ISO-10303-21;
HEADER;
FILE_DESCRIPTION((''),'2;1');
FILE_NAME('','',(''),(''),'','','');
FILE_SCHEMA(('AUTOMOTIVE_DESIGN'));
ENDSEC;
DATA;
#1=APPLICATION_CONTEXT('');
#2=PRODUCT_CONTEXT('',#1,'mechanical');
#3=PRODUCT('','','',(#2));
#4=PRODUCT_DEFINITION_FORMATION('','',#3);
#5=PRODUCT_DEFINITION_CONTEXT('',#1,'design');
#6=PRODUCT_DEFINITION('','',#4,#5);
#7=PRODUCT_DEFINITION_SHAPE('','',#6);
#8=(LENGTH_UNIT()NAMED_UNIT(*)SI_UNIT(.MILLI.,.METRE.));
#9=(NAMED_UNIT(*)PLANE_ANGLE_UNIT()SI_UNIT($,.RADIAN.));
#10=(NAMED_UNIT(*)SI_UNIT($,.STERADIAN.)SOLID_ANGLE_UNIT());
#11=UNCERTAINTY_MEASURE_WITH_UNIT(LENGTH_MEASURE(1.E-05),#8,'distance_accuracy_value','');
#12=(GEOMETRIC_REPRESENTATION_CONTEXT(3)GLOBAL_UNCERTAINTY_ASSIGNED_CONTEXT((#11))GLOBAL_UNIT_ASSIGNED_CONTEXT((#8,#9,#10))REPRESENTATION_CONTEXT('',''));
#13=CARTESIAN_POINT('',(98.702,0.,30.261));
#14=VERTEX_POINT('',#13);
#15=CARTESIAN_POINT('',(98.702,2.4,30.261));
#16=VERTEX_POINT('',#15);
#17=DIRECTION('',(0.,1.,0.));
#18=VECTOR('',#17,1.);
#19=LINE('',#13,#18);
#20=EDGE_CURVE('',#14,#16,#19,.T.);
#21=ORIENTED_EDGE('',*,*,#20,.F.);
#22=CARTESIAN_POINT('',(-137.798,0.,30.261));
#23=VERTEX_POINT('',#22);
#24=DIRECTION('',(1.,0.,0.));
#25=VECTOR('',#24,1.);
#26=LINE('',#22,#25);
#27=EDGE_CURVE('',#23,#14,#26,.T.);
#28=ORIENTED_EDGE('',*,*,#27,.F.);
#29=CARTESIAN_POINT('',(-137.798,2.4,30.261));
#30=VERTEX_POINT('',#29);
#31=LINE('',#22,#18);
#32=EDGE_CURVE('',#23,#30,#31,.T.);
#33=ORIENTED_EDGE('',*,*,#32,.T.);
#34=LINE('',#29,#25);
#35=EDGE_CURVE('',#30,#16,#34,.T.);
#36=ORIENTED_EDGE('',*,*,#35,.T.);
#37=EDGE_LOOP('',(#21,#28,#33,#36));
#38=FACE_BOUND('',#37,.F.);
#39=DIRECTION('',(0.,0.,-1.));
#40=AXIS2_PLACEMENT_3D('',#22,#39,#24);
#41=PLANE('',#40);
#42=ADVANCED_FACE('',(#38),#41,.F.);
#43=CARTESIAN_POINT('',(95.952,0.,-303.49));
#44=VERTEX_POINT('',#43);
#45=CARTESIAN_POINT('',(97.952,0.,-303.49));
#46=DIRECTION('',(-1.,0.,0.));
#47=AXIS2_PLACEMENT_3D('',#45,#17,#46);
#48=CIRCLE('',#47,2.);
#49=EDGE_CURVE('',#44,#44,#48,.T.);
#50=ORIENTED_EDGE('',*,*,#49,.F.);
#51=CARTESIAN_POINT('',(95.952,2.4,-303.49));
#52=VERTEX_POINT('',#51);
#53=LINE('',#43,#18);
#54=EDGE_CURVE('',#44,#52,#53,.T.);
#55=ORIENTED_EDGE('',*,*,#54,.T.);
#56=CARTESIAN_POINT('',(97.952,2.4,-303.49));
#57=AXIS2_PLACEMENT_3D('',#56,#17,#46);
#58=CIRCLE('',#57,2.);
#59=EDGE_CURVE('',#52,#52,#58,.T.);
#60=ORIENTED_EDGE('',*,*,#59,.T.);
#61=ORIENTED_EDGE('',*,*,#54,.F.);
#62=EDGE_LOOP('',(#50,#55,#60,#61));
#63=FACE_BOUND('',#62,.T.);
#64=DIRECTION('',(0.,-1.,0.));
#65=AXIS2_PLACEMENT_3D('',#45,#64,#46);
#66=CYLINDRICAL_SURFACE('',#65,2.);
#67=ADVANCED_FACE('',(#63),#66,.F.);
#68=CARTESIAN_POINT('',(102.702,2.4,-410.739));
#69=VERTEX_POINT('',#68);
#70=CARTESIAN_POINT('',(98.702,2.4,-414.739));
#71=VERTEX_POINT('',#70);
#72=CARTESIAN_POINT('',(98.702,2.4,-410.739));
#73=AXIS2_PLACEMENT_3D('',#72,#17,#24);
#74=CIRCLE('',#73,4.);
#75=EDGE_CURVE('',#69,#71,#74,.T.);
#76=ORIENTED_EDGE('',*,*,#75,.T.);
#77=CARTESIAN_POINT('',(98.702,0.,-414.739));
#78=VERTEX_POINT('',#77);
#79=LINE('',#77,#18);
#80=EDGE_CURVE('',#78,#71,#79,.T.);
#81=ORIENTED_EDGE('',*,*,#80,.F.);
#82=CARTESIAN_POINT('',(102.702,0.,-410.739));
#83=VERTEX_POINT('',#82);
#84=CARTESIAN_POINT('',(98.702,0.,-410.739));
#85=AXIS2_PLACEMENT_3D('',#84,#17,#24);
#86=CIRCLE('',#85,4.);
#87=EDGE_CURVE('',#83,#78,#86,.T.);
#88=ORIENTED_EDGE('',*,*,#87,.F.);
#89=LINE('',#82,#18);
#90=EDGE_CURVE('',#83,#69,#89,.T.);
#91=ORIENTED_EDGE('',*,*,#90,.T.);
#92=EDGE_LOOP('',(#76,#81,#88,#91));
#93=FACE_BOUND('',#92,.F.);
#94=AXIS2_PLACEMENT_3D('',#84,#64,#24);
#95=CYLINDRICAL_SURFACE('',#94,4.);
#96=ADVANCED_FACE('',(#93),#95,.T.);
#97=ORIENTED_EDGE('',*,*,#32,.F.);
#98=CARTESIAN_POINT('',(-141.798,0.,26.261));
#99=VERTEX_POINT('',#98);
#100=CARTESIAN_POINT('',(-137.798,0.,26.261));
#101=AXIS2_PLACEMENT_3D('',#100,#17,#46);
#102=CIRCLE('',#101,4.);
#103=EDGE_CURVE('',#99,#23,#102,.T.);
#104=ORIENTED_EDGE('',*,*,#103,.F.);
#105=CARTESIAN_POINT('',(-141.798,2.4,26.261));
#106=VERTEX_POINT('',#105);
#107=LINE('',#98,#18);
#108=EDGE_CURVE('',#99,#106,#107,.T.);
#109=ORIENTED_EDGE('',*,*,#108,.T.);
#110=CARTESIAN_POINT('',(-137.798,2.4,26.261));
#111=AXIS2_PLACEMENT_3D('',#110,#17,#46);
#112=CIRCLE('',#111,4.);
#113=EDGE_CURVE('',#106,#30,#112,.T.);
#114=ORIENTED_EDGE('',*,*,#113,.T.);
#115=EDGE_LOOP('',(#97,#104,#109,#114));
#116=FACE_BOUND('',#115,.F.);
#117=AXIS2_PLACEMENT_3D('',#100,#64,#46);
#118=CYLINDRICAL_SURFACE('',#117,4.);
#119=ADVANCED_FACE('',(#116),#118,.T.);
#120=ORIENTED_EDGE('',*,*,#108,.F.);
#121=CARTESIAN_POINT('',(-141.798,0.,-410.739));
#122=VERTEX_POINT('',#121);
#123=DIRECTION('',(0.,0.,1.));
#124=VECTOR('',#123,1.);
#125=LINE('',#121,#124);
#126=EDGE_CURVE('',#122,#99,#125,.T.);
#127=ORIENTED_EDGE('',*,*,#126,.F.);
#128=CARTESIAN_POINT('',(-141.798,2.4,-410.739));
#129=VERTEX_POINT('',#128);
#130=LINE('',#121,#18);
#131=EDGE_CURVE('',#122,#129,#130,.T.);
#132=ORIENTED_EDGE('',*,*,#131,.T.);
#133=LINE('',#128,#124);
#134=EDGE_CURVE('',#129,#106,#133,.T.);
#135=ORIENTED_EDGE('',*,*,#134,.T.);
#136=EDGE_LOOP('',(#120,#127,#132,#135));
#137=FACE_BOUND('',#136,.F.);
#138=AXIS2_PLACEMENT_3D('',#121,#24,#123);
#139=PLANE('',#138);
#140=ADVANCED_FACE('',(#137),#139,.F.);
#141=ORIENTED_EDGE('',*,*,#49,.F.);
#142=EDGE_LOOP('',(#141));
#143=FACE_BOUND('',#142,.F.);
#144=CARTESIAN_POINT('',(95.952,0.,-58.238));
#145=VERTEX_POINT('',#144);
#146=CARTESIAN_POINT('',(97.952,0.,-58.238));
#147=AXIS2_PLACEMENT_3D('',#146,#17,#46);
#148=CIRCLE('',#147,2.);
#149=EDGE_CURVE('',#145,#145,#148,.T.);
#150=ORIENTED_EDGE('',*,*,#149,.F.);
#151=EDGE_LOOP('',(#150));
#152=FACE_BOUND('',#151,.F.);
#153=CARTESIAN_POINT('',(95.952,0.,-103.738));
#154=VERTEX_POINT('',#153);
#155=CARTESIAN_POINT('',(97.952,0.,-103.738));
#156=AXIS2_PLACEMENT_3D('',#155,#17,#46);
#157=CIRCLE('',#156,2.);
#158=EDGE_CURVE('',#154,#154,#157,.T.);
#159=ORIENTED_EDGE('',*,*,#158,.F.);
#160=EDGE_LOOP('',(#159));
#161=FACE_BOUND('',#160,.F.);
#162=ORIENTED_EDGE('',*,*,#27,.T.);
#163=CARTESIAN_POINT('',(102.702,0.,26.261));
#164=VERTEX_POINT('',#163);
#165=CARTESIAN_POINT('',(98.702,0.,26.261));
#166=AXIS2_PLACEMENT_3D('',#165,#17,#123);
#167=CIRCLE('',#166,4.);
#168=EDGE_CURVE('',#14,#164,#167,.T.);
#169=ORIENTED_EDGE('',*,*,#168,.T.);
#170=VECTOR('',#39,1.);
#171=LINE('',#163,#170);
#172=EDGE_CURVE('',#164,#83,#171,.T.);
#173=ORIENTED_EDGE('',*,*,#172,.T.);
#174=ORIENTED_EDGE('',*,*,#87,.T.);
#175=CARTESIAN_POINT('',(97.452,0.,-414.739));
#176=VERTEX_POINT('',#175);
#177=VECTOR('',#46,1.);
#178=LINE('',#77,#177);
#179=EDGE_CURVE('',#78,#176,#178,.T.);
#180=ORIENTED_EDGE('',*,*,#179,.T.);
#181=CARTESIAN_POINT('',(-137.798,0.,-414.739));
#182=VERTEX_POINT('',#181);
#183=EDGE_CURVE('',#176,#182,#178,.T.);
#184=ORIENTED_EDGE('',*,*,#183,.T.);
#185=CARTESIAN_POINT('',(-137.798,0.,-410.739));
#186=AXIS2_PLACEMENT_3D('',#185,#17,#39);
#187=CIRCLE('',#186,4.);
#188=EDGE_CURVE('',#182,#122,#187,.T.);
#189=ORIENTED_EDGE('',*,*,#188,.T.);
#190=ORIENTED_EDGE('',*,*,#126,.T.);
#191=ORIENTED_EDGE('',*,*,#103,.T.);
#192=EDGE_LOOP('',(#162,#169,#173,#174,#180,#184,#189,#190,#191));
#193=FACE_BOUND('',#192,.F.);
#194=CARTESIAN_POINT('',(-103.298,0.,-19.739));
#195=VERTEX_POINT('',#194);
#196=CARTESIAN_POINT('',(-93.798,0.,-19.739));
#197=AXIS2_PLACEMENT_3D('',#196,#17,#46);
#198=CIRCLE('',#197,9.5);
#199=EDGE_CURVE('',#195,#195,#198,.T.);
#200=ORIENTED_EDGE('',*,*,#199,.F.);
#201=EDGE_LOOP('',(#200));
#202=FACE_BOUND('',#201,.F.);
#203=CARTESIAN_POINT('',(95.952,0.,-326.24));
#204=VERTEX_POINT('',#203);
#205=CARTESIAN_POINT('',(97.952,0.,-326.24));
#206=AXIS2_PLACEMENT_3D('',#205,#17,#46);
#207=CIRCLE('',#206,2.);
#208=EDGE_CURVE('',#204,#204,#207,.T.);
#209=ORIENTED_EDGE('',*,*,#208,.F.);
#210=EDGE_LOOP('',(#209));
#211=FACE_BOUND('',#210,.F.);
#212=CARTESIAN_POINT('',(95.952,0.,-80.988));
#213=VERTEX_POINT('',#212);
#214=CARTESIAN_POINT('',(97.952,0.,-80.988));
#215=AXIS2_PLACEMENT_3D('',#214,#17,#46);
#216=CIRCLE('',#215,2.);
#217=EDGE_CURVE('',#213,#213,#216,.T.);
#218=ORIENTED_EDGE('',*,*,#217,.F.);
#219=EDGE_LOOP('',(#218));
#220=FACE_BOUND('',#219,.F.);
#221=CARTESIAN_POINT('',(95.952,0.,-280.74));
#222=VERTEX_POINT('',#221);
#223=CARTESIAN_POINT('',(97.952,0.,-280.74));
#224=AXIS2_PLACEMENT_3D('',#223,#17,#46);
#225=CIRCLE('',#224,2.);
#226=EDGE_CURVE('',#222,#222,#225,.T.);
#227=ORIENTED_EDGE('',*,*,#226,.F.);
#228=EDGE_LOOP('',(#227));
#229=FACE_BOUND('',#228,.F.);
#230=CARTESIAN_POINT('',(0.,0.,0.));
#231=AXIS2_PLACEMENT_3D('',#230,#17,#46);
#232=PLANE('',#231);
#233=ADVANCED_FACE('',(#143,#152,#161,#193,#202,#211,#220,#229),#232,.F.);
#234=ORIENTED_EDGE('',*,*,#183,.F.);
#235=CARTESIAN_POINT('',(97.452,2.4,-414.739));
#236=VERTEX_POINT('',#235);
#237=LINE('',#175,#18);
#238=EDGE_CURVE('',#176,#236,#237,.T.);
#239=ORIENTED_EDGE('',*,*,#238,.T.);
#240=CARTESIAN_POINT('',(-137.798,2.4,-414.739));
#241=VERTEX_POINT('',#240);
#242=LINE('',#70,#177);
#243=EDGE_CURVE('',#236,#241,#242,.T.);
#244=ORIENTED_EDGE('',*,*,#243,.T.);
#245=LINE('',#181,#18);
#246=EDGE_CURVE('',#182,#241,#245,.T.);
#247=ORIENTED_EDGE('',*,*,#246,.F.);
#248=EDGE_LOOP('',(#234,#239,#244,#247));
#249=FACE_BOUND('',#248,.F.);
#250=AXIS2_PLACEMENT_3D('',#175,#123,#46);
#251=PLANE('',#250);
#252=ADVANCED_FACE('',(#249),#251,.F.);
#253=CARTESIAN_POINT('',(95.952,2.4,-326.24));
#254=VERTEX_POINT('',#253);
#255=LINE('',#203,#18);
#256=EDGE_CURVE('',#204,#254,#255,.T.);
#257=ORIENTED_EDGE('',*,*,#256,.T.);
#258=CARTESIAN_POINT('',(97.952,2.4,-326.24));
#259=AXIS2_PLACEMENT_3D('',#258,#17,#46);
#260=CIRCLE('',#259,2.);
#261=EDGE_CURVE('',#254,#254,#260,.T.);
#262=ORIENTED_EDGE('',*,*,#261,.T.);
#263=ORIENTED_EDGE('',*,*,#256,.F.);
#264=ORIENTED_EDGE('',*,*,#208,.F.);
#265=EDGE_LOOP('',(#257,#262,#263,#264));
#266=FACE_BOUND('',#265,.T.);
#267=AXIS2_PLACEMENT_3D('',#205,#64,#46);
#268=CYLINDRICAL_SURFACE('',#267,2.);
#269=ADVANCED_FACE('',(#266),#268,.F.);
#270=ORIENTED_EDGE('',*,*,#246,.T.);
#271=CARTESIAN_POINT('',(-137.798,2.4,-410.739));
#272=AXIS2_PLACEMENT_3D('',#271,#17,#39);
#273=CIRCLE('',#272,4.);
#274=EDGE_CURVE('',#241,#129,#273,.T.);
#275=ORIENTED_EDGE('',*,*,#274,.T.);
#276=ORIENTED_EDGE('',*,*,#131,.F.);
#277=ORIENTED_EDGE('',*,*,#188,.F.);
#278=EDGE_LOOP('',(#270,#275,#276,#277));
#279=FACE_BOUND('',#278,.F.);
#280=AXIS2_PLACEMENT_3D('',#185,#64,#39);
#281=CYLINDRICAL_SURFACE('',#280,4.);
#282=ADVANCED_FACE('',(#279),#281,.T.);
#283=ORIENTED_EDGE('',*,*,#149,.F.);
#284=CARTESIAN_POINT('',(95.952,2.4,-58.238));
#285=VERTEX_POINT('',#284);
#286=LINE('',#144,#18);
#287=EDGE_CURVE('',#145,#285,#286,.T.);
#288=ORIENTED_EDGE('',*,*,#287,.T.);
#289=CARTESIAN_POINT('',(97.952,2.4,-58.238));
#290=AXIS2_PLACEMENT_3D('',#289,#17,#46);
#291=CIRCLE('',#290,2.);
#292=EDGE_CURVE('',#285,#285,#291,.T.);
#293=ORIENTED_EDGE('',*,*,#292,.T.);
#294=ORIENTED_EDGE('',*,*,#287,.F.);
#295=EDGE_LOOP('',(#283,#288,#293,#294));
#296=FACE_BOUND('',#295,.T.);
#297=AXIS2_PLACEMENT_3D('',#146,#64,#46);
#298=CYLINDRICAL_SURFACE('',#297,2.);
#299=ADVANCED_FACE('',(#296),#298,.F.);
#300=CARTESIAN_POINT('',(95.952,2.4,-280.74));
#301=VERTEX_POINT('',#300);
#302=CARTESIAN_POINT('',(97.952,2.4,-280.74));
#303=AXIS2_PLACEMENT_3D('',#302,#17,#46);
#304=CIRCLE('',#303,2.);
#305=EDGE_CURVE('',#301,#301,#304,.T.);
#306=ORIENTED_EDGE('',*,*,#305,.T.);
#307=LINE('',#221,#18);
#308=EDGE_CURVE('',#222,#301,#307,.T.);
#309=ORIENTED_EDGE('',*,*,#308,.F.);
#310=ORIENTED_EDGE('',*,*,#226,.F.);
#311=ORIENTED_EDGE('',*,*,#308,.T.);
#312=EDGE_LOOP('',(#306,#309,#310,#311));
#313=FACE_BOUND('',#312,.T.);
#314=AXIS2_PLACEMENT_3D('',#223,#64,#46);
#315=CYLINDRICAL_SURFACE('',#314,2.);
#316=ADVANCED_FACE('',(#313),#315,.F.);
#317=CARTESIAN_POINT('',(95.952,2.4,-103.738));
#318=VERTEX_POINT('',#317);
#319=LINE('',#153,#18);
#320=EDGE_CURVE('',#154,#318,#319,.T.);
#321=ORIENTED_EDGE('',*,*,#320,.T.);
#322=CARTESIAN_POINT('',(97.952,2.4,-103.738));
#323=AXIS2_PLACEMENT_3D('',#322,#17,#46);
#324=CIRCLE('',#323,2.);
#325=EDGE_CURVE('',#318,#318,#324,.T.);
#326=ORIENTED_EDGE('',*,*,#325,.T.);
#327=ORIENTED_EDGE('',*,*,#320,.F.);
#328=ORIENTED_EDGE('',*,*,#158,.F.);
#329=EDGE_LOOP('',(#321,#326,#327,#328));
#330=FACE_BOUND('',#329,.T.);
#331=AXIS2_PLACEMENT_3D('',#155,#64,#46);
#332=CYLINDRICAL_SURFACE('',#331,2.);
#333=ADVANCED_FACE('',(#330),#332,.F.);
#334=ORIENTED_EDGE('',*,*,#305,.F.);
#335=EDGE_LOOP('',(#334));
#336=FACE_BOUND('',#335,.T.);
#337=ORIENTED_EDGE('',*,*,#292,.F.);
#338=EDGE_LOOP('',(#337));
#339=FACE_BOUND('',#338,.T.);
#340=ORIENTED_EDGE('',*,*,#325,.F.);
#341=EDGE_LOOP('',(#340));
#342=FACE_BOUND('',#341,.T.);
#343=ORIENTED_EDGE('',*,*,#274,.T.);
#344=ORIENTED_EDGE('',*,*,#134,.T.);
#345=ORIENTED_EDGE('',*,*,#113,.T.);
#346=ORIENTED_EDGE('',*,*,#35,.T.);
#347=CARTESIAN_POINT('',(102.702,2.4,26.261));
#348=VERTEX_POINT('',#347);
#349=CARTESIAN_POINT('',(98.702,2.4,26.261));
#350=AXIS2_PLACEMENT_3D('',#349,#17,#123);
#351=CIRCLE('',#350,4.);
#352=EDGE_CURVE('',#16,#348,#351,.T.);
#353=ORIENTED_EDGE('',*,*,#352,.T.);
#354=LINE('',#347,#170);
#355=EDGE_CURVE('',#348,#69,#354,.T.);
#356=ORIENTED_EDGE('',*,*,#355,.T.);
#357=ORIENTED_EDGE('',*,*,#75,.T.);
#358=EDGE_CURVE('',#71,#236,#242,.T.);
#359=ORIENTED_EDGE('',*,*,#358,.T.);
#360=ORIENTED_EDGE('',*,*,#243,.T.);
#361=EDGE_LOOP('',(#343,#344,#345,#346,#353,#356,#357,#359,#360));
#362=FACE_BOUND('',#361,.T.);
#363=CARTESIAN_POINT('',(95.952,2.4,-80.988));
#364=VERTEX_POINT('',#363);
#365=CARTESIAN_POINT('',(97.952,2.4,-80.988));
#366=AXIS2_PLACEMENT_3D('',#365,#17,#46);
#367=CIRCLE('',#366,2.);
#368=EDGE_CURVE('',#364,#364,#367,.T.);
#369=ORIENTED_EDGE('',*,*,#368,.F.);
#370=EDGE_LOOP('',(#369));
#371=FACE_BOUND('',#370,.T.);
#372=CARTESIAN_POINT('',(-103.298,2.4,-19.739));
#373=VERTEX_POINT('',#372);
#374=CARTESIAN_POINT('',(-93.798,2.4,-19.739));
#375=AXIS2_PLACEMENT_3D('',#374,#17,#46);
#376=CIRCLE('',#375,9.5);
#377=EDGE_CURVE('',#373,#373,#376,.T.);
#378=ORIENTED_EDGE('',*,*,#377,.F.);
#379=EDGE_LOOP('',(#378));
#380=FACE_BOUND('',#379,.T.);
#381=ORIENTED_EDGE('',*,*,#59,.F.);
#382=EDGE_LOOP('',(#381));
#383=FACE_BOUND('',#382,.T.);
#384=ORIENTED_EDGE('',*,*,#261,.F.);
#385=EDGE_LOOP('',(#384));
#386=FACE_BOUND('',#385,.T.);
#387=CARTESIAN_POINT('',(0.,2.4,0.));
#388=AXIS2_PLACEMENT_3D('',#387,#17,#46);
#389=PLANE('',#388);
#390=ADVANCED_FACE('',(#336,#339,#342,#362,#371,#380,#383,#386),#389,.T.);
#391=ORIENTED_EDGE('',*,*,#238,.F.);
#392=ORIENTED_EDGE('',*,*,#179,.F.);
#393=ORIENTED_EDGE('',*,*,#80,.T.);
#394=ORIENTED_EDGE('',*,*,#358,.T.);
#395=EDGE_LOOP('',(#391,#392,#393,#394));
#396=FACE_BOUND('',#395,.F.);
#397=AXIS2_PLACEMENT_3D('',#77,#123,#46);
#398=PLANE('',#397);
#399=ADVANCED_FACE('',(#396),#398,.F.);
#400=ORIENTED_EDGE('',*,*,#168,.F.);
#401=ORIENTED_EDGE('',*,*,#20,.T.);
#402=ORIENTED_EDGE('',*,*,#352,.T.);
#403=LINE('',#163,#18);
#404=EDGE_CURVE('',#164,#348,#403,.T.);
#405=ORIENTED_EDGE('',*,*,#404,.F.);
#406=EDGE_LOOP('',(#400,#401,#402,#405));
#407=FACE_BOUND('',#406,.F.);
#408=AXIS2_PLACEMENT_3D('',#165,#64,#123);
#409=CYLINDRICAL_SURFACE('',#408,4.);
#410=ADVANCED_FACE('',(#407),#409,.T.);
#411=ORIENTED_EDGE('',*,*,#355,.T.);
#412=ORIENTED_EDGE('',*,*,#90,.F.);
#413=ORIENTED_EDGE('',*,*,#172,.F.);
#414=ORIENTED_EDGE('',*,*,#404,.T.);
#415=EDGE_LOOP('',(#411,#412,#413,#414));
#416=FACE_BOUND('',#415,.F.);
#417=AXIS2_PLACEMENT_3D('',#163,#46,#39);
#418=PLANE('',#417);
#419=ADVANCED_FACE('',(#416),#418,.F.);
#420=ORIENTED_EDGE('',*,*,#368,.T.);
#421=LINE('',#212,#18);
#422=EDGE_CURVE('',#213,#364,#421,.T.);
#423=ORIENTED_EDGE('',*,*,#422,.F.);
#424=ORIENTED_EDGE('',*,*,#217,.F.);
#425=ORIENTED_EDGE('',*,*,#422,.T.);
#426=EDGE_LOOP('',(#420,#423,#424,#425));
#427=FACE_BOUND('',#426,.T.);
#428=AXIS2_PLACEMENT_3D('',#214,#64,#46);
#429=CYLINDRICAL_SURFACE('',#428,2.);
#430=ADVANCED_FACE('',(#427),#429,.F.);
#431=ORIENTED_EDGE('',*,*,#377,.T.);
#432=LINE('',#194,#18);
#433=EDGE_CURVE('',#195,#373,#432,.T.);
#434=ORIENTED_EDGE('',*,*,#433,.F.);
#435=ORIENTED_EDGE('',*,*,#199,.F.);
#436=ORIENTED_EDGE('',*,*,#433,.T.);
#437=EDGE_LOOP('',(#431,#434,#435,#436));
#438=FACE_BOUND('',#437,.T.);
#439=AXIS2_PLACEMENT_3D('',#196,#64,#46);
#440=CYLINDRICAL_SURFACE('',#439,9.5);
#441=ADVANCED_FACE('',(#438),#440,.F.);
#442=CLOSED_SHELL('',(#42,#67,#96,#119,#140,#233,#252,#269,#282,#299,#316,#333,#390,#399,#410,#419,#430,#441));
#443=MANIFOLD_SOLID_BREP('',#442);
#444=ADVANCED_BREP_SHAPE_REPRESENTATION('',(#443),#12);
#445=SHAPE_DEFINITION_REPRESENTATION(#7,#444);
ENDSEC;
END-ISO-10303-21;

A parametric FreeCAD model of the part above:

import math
import FreeCAD as App
import Part
import Sketcher
from FreeCAD import Vector
Q = App.Units.Quantity

doc = App.newDocument("Part")
body = doc.addObject("PartDesign::Body", "Body")

# Sketch on XZ plane
sketch1 = body.newObject("Sketcher::SketchObject", "Sketch")
sketch1.AttachmentSupport = (doc.getObject("XZ_Plane"), [""])
sketch1.MapMode = "FlatFace"
sketch1.addGeometry([
    Part.ArcOfCircle(Part.Circle(Vector(-137.798, 26.261, 0), Vector(0, 0, 1), 4), math.radians(90), math.radians(180)),  # 0
    Part.LineSegment(Vector(-137.798, 30.261, 0), Vector(98.702, 30.261, 0)),  # 1
    Part.ArcOfCircle(Part.Circle(Vector(98.702, 26.261, 0), Vector(0, 0, 1), 4), math.radians(0), math.radians(90)),  # 2
    Part.LineSegment(Vector(102.702, 26.261, 0), Vector(102.702, -410.739, 0)),  # 3
    Part.ArcOfCircle(Part.Circle(Vector(98.702, -410.739, 0), Vector(0, 0, 1), 4), math.radians(-90), math.radians(0)),  # 4
    Part.LineSegment(Vector(98.702, -414.739, 0), Vector(-137.798, -414.739, 0)),  # 5
    Part.ArcOfCircle(Part.Circle(Vector(-137.798, -410.739, 0), Vector(0, 0, 1), 4), math.radians(180), math.radians(270)),  # 6
    Part.LineSegment(Vector(-141.798, -410.739, 0), Vector(-141.798, 26.261, 0)),  # 7
    Part.Circle(Vector(97.952, -326.24, 0), Vector(0, 0, 1), 2),  # 8
    Part.Circle(Vector(97.952, -303.49, 0), Vector(0, 0, 1), 2),  # 9
    Part.Circle(Vector(97.952, -280.74, 0), Vector(0, 0, 1), 2),  # 10
    Part.Circle(Vector(97.952, -103.738, 0), Vector(0, 0, 1), 2),  # 11
    Part.Circle(Vector(97.952, -80.988, 0), Vector(0, 0, 1), 2),  # 12
    Part.Circle(Vector(97.952, -58.238, 0), Vector(0, 0, 1), 2),  # 13
    Part.Circle(Vector(-93.798, -19.739, 0), Vector(0, 0, 1), 9.5),  # 14
], False)
sketch1.addConstraint([
    Sketcher.Constraint("Tangent", 0, 1, 1, 1),
    Sketcher.Constraint("Tangent", 1, 2, 2, 2),
    Sketcher.Constraint("Tangent", 2, 1, 3, 1),
    Sketcher.Constraint("Tangent", 3, 2, 4, 2),
    Sketcher.Constraint("Tangent", 4, 1, 5, 1),
    Sketcher.Constraint("Tangent", 5, 2, 6, 2),
    Sketcher.Constraint("Tangent", 6, 1, 7, 1),
    Sketcher.Constraint("Tangent", 7, 2, 0, 2),
    Sketcher.Constraint("Horizontal", 1),
    Sketcher.Constraint("Vertical", 3),
    Sketcher.Constraint("Horizontal", 5),
    Sketcher.Constraint("Vertical", 7),
    Sketcher.Constraint("Equal", 0, 2),
    Sketcher.Constraint("Equal", 2, 4),
    Sketcher.Constraint("Equal", 4, 6),
    Sketcher.Constraint("Equal", 8, 9),
    Sketcher.Constraint("Equal", 9, 10),
    Sketcher.Constraint("Equal", 10, 11),
    Sketcher.Constraint("Equal", 11, 12),
    Sketcher.Constraint("Equal", 12, 13),
    Sketcher.Constraint("Vertical", 8, 3, 9, 3),
    Sketcher.Constraint("Vertical", 9, 3, 10, 3),
    Sketcher.Constraint("Vertical", 10, 3, 11, 3),
    Sketcher.Constraint("Vertical", 11, 3, 12, 3),
    Sketcher.Constraint("Vertical", 12, 3, 13, 3),
    Sketcher.Constraint("Diameter", 8, Q("4 mm")),
    Sketcher.Constraint("Diameter", 14, Q("19 mm")),
    Sketcher.Constraint("Radius", 0, Q("4 mm")),
    Sketcher.Constraint("DistanceY", 14, 3, 0, 1, Q("50 mm")),
    Sketcher.Constraint("DistanceX", 7, 2, 14, 3, Q("48 mm")),
    Sketcher.Constraint("DistanceX", 6, 1, 3, 2, Q("244.5 mm")),
    Sketcher.Constraint("DistanceY", 3, 2, 3, 1, Q("437 mm")),
    Sketcher.Constraint("DistanceY", 8, 3, 9, 3, Q("22.75 mm")),
    Sketcher.Constraint("DistanceY", 9, 3, 10, 3, Q("22.75 mm")),
    Sketcher.Constraint("DistanceY", 11, 3, 12, 3, Q("22.75 mm")),
    Sketcher.Constraint("DistanceY", 12, 3, 13, 3, Q("22.75 mm")),
    Sketcher.Constraint("DistanceX", 13, 3, 2, 1, Q("4.75 mm")),
    Sketcher.Constraint("DistanceY", 13, 3, 0, 1, Q("88.499 mm")),
    Sketcher.Constraint("DistanceY", 4, 1, 8, 3, Q("88.499 mm")),
    Sketcher.Constraint("DistanceY", 8, 3, -1, 1, Q("326.24 mm")),
    Sketcher.Constraint("DistanceX", 0, 3, -1, 1, Q("137.798 mm")),
])
pad1 = body.newObject("PartDesign::Pad", "Pad")
pad1.Profile = sketch1
pad1.Length = 2.4
pad1.Reversed = True

doc.recompute()
